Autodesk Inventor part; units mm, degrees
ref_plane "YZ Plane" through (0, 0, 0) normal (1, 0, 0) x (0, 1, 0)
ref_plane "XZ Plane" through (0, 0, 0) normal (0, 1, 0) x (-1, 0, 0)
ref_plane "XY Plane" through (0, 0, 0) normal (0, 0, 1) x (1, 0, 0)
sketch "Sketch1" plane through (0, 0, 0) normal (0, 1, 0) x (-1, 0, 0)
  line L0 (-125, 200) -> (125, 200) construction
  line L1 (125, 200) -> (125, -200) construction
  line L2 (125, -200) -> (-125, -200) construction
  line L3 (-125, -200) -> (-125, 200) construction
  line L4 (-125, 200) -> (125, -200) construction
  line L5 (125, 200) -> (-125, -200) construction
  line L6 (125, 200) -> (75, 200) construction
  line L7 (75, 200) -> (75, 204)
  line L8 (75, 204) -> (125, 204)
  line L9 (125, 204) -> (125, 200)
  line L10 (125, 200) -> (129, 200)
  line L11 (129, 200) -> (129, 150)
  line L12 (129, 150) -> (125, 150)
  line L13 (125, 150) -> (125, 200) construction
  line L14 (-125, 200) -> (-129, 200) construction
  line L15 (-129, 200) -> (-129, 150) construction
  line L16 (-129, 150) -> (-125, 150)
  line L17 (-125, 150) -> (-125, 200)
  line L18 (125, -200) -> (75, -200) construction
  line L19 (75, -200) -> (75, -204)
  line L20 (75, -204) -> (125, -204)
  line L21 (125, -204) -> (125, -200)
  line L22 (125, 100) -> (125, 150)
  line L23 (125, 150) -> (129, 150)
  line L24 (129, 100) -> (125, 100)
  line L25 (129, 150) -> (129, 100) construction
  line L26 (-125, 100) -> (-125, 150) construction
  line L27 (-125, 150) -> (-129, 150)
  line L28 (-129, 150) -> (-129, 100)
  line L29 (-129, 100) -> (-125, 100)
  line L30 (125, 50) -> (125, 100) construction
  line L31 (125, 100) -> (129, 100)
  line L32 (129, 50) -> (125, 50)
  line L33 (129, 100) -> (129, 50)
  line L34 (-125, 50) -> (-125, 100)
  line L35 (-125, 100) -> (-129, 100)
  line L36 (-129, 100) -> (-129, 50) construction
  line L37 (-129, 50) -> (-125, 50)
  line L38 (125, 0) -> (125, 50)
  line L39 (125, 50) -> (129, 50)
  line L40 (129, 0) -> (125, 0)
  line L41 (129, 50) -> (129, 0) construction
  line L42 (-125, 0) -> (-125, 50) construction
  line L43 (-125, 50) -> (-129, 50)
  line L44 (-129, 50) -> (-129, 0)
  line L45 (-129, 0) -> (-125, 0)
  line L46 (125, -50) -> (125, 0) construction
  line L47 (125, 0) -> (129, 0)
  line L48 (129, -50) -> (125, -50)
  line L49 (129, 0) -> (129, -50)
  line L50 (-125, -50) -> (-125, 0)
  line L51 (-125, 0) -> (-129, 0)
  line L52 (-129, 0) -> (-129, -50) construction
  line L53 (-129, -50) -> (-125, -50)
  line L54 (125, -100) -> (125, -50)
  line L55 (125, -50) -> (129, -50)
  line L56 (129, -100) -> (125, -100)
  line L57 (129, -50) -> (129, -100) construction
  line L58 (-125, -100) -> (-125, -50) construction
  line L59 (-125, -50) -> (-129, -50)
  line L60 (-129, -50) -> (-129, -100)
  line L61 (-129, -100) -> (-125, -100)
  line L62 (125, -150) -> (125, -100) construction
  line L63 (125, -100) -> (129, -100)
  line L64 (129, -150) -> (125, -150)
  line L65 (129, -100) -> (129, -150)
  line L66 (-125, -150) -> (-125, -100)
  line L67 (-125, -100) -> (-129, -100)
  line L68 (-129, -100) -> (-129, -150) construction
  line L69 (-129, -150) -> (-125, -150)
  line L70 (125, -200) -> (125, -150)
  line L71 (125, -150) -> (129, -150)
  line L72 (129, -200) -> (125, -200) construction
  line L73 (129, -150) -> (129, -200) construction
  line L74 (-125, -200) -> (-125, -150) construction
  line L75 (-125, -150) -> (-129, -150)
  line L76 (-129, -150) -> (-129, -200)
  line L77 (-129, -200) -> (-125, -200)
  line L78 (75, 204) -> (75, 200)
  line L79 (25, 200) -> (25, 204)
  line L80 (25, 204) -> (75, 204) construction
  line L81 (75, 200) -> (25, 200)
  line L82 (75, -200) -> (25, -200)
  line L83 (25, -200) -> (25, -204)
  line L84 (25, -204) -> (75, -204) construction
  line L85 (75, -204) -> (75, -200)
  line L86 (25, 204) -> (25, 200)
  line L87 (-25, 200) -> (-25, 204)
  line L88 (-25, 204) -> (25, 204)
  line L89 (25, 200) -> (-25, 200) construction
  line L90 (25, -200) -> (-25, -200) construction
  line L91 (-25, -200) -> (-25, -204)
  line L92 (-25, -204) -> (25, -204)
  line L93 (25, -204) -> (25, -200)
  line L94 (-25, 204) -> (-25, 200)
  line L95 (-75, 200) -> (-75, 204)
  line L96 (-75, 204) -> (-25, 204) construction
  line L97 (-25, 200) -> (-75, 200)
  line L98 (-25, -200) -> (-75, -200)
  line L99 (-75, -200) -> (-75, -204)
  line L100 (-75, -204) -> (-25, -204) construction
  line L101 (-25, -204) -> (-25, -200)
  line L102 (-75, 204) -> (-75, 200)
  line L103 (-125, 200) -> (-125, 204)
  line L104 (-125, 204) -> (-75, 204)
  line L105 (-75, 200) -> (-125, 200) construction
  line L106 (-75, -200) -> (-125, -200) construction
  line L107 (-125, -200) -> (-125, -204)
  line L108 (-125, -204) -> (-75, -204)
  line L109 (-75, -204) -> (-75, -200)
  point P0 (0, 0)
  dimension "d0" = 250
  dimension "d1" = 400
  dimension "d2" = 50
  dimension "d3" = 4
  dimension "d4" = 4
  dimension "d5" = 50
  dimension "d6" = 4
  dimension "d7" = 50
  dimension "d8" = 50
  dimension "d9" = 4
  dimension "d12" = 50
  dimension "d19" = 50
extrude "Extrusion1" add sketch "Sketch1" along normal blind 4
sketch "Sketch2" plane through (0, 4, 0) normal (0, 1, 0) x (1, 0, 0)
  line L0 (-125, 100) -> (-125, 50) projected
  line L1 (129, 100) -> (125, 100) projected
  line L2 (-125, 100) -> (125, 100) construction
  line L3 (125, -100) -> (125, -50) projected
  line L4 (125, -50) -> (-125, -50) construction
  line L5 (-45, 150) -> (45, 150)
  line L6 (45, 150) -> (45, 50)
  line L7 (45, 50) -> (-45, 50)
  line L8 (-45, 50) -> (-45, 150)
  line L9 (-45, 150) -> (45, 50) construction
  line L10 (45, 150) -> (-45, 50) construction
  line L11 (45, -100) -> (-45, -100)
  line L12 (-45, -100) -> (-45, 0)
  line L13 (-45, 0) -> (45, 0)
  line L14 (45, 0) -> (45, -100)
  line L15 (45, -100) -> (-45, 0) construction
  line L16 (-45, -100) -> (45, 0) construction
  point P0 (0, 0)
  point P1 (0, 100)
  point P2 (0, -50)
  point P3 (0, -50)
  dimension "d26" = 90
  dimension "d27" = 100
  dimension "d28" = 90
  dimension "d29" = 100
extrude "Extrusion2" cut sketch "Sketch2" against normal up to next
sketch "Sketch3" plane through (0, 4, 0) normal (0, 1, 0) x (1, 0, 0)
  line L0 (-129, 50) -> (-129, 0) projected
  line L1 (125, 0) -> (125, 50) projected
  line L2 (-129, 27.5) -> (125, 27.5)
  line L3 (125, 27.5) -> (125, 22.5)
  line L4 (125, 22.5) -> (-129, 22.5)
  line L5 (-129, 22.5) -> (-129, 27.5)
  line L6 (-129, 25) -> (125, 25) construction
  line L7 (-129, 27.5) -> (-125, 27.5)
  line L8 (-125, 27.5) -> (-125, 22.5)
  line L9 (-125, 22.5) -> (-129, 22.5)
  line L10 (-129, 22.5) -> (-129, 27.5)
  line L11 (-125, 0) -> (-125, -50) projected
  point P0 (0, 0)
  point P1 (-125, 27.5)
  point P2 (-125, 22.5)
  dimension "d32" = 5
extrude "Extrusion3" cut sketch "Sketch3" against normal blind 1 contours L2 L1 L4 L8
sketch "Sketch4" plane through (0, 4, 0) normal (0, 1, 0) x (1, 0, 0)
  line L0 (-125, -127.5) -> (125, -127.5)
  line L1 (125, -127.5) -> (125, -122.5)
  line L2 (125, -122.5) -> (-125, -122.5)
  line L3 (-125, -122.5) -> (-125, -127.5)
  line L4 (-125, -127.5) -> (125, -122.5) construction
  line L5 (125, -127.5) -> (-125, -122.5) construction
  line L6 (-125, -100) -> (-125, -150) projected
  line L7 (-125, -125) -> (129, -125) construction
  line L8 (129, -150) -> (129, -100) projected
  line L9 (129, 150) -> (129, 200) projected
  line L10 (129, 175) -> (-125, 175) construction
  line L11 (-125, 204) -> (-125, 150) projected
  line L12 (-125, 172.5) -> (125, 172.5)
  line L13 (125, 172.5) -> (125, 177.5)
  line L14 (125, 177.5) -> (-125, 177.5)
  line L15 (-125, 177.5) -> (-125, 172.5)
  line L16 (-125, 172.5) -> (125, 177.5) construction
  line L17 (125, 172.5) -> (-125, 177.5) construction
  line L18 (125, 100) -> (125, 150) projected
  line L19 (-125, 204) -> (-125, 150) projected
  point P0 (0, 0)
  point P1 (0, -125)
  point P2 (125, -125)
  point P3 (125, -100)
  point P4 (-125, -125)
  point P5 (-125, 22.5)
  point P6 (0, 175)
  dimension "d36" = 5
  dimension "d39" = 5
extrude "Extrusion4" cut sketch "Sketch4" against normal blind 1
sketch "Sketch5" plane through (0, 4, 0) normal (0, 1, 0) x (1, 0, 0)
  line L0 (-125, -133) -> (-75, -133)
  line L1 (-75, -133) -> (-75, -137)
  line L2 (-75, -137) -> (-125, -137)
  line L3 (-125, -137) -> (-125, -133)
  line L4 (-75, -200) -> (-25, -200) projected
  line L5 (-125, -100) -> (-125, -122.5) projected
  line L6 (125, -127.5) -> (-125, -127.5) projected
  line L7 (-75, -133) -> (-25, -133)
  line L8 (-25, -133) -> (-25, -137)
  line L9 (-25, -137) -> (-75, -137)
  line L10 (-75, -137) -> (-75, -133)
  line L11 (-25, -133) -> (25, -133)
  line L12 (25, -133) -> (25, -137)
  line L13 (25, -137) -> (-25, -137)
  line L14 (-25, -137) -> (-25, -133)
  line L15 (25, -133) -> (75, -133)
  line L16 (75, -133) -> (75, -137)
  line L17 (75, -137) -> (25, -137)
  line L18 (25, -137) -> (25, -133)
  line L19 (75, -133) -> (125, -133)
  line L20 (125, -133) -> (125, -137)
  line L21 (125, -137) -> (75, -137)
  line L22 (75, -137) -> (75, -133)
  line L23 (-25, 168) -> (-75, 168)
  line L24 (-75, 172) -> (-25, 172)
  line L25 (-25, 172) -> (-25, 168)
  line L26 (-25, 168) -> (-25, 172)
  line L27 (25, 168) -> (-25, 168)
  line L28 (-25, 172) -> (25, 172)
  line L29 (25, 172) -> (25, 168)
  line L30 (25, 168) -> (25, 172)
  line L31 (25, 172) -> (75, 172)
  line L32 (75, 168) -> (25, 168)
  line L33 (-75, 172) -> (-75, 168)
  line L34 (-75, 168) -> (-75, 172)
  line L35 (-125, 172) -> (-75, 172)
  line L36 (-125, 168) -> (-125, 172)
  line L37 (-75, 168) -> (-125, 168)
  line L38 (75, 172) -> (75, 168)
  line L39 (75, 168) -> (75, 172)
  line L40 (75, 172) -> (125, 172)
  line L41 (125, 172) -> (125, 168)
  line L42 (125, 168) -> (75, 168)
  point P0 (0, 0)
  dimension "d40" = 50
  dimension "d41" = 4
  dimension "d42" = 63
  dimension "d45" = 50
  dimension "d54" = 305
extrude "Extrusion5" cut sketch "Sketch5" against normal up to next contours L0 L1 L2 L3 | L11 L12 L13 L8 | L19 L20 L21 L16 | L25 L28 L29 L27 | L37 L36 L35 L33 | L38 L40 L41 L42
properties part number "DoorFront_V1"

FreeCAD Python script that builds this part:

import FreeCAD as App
import Part
import Sketcher

V = App.Vector


def add_polygon(sketch, points):
    """Adds a closed chain of lines whose ends are joined by coincident constraints."""
    first, n = sketch.GeometryCount, len(points)
    for a, b in zip(points, points[1:] + points[:1]):
        sketch.addGeometry(Part.LineSegment(App.Vector(*a, 0), App.Vector(*b, 0)), False)
    for i in range(n):
        sketch.addConstraint(Sketcher.Constraint("Coincident", first + i, 2, first + (i + 1) % n, 1))

doc = App.newDocument("Part")
body = doc.addObject("PartDesign::Body", "Body")

# Sketch on XZ plane
sketch1 = body.newObject("Sketcher::SketchObject", "Sketch")
sketch1.AttachmentSupport = (doc.getObject("XZ_Plane"), [""])
sketch1.MapMode = "FlatFace"
add_polygon(sketch1, [(-75, 204), (-75, 200), (-25, 200), (-25, 204), (25, 204), (25, 200), (75, 200), (75, 204), (125, 204), (125, 150), (129, 150), (129, 100), (125, 100), (125, 50), (129, 50), (129, 0), (125, 0), (125, -50), (129, -50), (129, -100), (125, -100), (125, -150), (129, -150), (129, -200), (125, -200), (125, -204), (75, -204), (75, -200), (25, -200), (25, -204), (-25, -204), (-25, -200), (-75, -200), (-75, -204), (-125, -204), (-125, -150), (-129, -150), (-129, -100), (-125, -100), (-125, -50), (-129, -50), (-129, 0), (-125, 0), (-125, 50), (-129, 50), (-129, 100), (-125, 100), (-125, 150), (-129, 150), (-129, 200), (-125, 200), (-125, 204)])  # lines 0-51
sketch1.addConstraint([
    Sketcher.Constraint("Vertical", 0),
    Sketcher.Constraint("Horizontal", 1),
    Sketcher.Constraint("Vertical", 2),
    Sketcher.Constraint("Horizontal", 3),
    Sketcher.Constraint("Vertical", 4),
    Sketcher.Constraint("Horizontal", 5),
    Sketcher.Constraint("Vertical", 6),
    Sketcher.Constraint("Horizontal", 7),
    Sketcher.Constraint("Vertical", 8),
    Sketcher.Constraint("Horizontal", 9),
    Sketcher.Constraint("Vertical", 10),
    Sketcher.Constraint("Horizontal", 11),
    Sketcher.Constraint("Vertical", 12),
    Sketcher.Constraint("Horizontal", 13),
    Sketcher.Constraint("Vertical", 14),
    Sketcher.Constraint("Horizontal", 15),
    Sketcher.Constraint("Vertical", 16),
    Sketcher.Constraint("Horizontal", 17),
    Sketcher.Constraint("Vertical", 18),
    Sketcher.Constraint("Horizontal", 19),
    Sketcher.Constraint("Vertical", 20),
    Sketcher.Constraint("Horizontal", 21),
    Sketcher.Constraint("Vertical", 22),
    Sketcher.Constraint("Horizontal", 23),
    Sketcher.Constraint("Vertical", 24),
    Sketcher.Constraint("Horizontal", 25),
    Sketcher.Constraint("Vertical", 26),
    Sketcher.Constraint("Horizontal", 27),
    Sketcher.Constraint("Vertical", 28),
    Sketcher.Constraint("Horizontal", 29),
    Sketcher.Constraint("Vertical", 30),
    Sketcher.Constraint("Horizontal", 31),
    Sketcher.Constraint("Vertical", 32),
    Sketcher.Constraint("Horizontal", 33),
    Sketcher.Constraint("Vertical", 34),
    Sketcher.Constraint("Horizontal", 35),
    Sketcher.Constraint("Vertical", 36),
    Sketcher.Constraint("Horizontal", 37),
    Sketcher.Constraint("Vertical", 38),
    Sketcher.Constraint("Horizontal", 39),
    Sketcher.Constraint("Vertical", 40),
    Sketcher.Constraint("Horizontal", 41),
    Sketcher.Constraint("Vertical", 42),
    Sketcher.Constraint("Horizontal", 43),
    Sketcher.Constraint("Vertical", 44),
    Sketcher.Constraint("Horizontal", 45),
    Sketcher.Constraint("Vertical", 46),
    Sketcher.Constraint("Horizontal", 47),
    Sketcher.Constraint("Vertical", 48),
    Sketcher.Constraint("Horizontal", 49),
    Sketcher.Constraint("Vertical", 50),
    Sketcher.Constraint("Horizontal", 51),
    Sketcher.Constraint("Symmetric", 0, 2, 26, 2, -1, 1),
    Sketcher.Constraint("Symmetric", 2, 2, 28, 2, -1, 1),
    Sketcher.Constraint("Symmetric", 4, 2, 30, 2, -1, 1),
    Sketcher.Constraint("Symmetric", 6, 2, 32, 2, -1, 1),
    Sketcher.Constraint("Symmetric", 8, 2, 34, 2, -1, 1),
    Sketcher.Constraint("Symmetric", 10, 2, 36, 2, -1, 1),
    Sketcher.Constraint("Symmetric", 12, 2, 38, 2, -1, 1),
    Sketcher.Constraint("Symmetric", 14, 2, 40, 2, -1, 1),
    Sketcher.Constraint("Symmetric", 16, 2, 42, 2, -1, 1),
    Sketcher.Constraint("Symmetric", 18, 2, 44, 2, -1, 1),
    Sketcher.Constraint("Symmetric", 20, 2, 46, 2, -1, 1),
    Sketcher.Constraint("Symmetric", 22, 2, 48, 2, -1, 1),
    Sketcher.Constraint("Symmetric", 24, 2, 50, 2, -1, 1),
    Sketcher.Constraint("Symmetric", 1, 2, 4, 2, -2),
    Sketcher.Constraint("Symmetric", 25, 2, 32, 2, -2),
    Sketcher.Constraint("Symmetric", 20, 2, 34, 2, -2),
    Sketcher.Constraint("Symmetric", 18, 2, 36, 2, -2),
    Sketcher.Constraint("Symmetric", 16, 2, 38, 2, -2),
    Sketcher.Constraint("PointOnObject", 14, 2, -1),
    Sketcher.Constraint("Horizontal", 3, 2, 6, 2),
    Sketcher.Constraint("Horizontal", 23, 2, 26, 2),
    Sketcher.Constraint("Vertical", 8, 2, 11, 2),
    Sketcher.Constraint("Vertical", 10, 2, 13, 2),
    Sketcher.Constraint("Vertical", 18, 2, 21, 2),
    Sketcher.Constraint("Vertical", 20, 2, 23, 2),
    Sketcher.Constraint("Equal", 1, 3),
    Sketcher.Constraint("Equal", 5, 7),
    Sketcher.Constraint("Equal", 49, 0),
    Sketcher.Constraint("Equal", 51, 10),
    Sketcher.Constraint("Equal", 10, 12),
    Sketcher.Constraint("Equal", 12, 14),
    Sketcher.Constraint("Equal", 20, 22),
    Sketcher.Constraint("DistanceX", 1, 1, 1, 2, 50.0),
    Sketcher.Constraint("DistanceX", 9, 1, 9, 2, 4.0),
])
pad1 = body.newObject("PartDesign::Pad", "Pad")
pad1.Profile = sketch1
pad1.Length = 4
pad1.Reversed = True

# Sketch on XZ plane
sketch2 = body.newObject("Sketcher::SketchObject", "Sketch001")
sketch2.AttachmentSupport = (doc.getObject("XZ_Plane"), [""])
sketch2.MapMode = "FlatFace"
sketch2.AttachmentOffset = App.Placement(V(0, 0, -4), App.Rotation())
add_polygon(sketch2, [(45, -150), (-45, -150), (-45, -50), (45, -50)])  # lines 0-3
add_polygon(sketch2, [(-45, 100), (45, 100), (45, 0), (-45, 0)])  # lines 4-7
sketch2.addConstraint([
    Sketcher.Constraint("Horizontal", 0),
    Sketcher.Constraint("Vertical", 1),
    Sketcher.Constraint("Horizontal", 2),
    Sketcher.Constraint("Vertical", 3),
    Sketcher.Constraint("Horizontal", 4),
    Sketcher.Constraint("Vertical", 5),
    Sketcher.Constraint("Horizontal", 6),
    Sketcher.Constraint("Vertical", 7),
    Sketcher.Constraint("Symmetric", 5, 2, 6, 2, -1, 1),
    Sketcher.Constraint("Vertical", 3, 2, 4, 2),
    Sketcher.Constraint("Vertical", 1, 2, 6, 2),
    Sketcher.Constraint("Equal", 3, 5),
    Sketcher.Constraint("DistanceX", 0, 2, 0, 1, 90.0),
    Sketcher.Constraint("DistanceY", 1, 1, 1, 2, 100.0),
    Sketcher.Constraint("DistanceY", 0, 2, -1, 1, 150.0),
])
pocket1 = body.newObject("PartDesign::Pocket", "Pocket")
pocket1.Profile = sketch2
pocket1.Type = "UpToFirst"
pocket1.Reversed = True

# Sketch on XZ plane
sketch3 = body.newObject("Sketcher::SketchObject", "Sketch002")
sketch3.AttachmentSupport = (doc.getObject("XZ_Plane"), [""])
sketch3.MapMode = "FlatFace"
sketch3.AttachmentOffset = App.Placement(V(0, 0, -4), App.Rotation())
add_polygon(sketch3, [(125, -27.5), (-125, -27.5), (-125, -22.5), (125, -22.5)])  # lines 0-3
sketch3.addConstraint([
    Sketcher.Constraint("Horizontal", 0),
    Sketcher.Constraint("Vertical", 1),
    Sketcher.Constraint("Horizontal", 2),
    Sketcher.Constraint("Vertical", 3),
    Sketcher.Constraint("DistanceY", 1, 1, 1, 2, 5.0),
    Sketcher.Constraint("DistanceX", 0, 2, 0, 1, 250.0),
    Sketcher.Constraint("DistanceX", 0, 2, -1, 1, 125.0),
    Sketcher.Constraint("DistanceY", 0, 2, -1, 1, 27.5),
])
pocket2 = body.newObject("PartDesign::Pocket", "Pocket001")
pocket2.Profile = sketch3
pocket2.Length = 1
pocket2.Reversed = True

# Sketch on XZ plane
sketch4 = body.newObject("Sketcher::SketchObject", "Sketch003")
sketch4.AttachmentSupport = (doc.getObject("XZ_Plane"), [""])
sketch4.MapMode = "FlatFace"
sketch4.AttachmentOffset = App.Placement(V(0, 0, -4), App.Rotation())
add_polygon(sketch4, [(-125, 122.5), (-125, 127.5), (125, 127.5), (125, 122.5)])  # lines 0-3
add_polygon(sketch4, [(125, -177.5), (-125, -177.5), (-125, -172.5), (125, -172.5)])  # lines 4-7
sketch4.addConstraint([
    Sketcher.Constraint("Vertical", 0),
    Sketcher.Constraint("Horizontal", 1),
    Sketcher.Constraint("Vertical", 2),
    Sketcher.Constraint("Horizontal", 3),
    Sketcher.Constraint("Horizontal", 4),
    Sketcher.Constraint("Vertical", 5),
    Sketcher.Constraint("Horizontal", 6),
    Sketcher.Constraint("Vertical", 7),
    Sketcher.Constraint("Vertical", 3, 2, 4, 2),
    Sketcher.Constraint("Vertical", 2, 2, 6, 2),
    Sketcher.Constraint("Equal", 2, 5),
    Sketcher.Constraint("DistanceY", 0, 1, 0, 2, 5.0),
    Sketcher.Constraint("DistanceX", 1, 1, 1, 2, 250.0),
    Sketcher.Constraint("DistanceX", 0, 2, -1, 1, 125.0),
    Sketcher.Constraint("DistanceY", 4, 2, 3, 2, 300.0),
    Sketcher.Constraint("DistanceY", -1, 1, 0, 2, 127.5),
])
pocket3 = body.newObject("PartDesign::Pocket", "Pocket002")
pocket3.Profile = sketch4
pocket3.Length = 1
pocket3.Reversed = True

# Sketch on XZ plane
sketch5 = body.newObject("Sketcher::SketchObject", "Sketch004")
sketch5.AttachmentSupport = (doc.getObject("XZ_Plane"), [""])
sketch5.MapMode = "FlatFace"
sketch5.AttachmentOffset = App.Placement(V(0, 0, -4), App.Rotation())
add_polygon(sketch5, [(-75, 133), (-125, 133), (-125, 137), (-75, 137)])  # lines 0-3
add_polygon(sketch5, [(25, 133), (-25, 133), (-25, 137), (25, 137)])  # lines 4-7
add_polygon(sketch5, [(125, 133), (75, 133), (75, 137), (125, 137)])  # lines 8-11
add_polygon(sketch5, [(-25, -172), (-25, -168), (25, -168), (25, -172)])  # lines 12-15
add_polygon(sketch5, [(-125, -168), (-75, -168), (-75, -172), (-125, -172)])  # lines 16-19
add_polygon(sketch5, [(75, -172), (75, -168), (125, -168), (125, -172)])  # lines 20-23
sketch5.addConstraint([
    Sketcher.Constraint("Horizontal", 0),
    Sketcher.Constraint("Vertical", 1),
    Sketcher.Constraint("Horizontal", 2),
    Sketcher.Constraint("Vertical", 3),
    Sketcher.Constraint("Horizontal", 4),
    Sketcher.Constraint("Vertical", 5),
    Sketcher.Constraint("Horizontal", 6),
    Sketcher.Constraint("Vertical", 7),
    Sketcher.Constraint("Horizontal", 8),
    Sketcher.Constraint("Vertical", 9),
    Sketcher.Constraint("Horizontal", 10),
    Sketcher.Constraint("Vertical", 11),
    Sketcher.Constraint("Vertical", 12),
    Sketcher.Constraint("Horizontal", 13),
    Sketcher.Constraint("Vertical", 14),
    Sketcher.Constraint("Horizontal", 15),
    Sketcher.Constraint("Horizontal", 16),
    Sketcher.Constraint("Vertical", 17),
    Sketcher.Constraint("Horizontal", 18),
    Sketcher.Constraint("Vertical", 19),
    Sketcher.Constraint("Vertical", 20),
    Sketcher.Constraint("Horizontal", 21),
    Sketcher.Constraint("Vertical", 22),
    Sketcher.Constraint("Horizontal", 23),
    Sketcher.Constraint("Symmetric", 3, 2, 8, 2, -2),
    Sketcher.Constraint("Symmetric", 1, 2, 10, 2, -2),
    Sketcher.Constraint("Symmetric", 16, 2, 20, 2, -2),
    Sketcher.Constraint("Symmetric", 18, 2, 22, 2, -2),
    Sketcher.Constraint("Horizontal", 3, 2, 4, 2),
    Sketcher.Constraint("Horizontal", 2, 2, 5, 2),
    Sketcher.Constraint("Horizontal", 13, 2, 16, 2),
    Sketcher.Constraint("Horizontal", 15, 2, 17, 2),
    Sketcher.Constraint("Vertical", 5, 2, 12, 2),
    Sketcher.Constraint("Vertical", 7, 2, 13, 2),
    Sketcher.Constraint("Vertical", 3, 2, 16, 2),
    Sketcher.Constraint("Vertical", 1, 2, 18, 2),
    Sketcher.Constraint("Equal", 2, 4),
    Sketcher.Constraint("Equal", 11, 12),
    Sketcher.Constraint("DistanceX", 0, 2, 0, 1, 50.0),
    Sketcher.Constraint("DistanceY", 1, 1, 1, 2, 4.0),
    Sketcher.Constraint("DistanceX", 3, 2, 4, 2, 50.0),
    Sketcher.Constraint("DistanceX", 7, 2, 8, 2, 50.0),
    Sketcher.Constraint("DistanceY", 12, 2, 5, 2, 305.0),
    Sketcher.Constraint("DistanceY", -1, 1, 0, 2, 133.0),
])
pocket4 = body.newObject("PartDesign::Pocket", "Pocket003")
pocket4.Profile = sketch5
pocket4.Type = "UpToFirst"
pocket4.Reversed = True

doc.recompute()
